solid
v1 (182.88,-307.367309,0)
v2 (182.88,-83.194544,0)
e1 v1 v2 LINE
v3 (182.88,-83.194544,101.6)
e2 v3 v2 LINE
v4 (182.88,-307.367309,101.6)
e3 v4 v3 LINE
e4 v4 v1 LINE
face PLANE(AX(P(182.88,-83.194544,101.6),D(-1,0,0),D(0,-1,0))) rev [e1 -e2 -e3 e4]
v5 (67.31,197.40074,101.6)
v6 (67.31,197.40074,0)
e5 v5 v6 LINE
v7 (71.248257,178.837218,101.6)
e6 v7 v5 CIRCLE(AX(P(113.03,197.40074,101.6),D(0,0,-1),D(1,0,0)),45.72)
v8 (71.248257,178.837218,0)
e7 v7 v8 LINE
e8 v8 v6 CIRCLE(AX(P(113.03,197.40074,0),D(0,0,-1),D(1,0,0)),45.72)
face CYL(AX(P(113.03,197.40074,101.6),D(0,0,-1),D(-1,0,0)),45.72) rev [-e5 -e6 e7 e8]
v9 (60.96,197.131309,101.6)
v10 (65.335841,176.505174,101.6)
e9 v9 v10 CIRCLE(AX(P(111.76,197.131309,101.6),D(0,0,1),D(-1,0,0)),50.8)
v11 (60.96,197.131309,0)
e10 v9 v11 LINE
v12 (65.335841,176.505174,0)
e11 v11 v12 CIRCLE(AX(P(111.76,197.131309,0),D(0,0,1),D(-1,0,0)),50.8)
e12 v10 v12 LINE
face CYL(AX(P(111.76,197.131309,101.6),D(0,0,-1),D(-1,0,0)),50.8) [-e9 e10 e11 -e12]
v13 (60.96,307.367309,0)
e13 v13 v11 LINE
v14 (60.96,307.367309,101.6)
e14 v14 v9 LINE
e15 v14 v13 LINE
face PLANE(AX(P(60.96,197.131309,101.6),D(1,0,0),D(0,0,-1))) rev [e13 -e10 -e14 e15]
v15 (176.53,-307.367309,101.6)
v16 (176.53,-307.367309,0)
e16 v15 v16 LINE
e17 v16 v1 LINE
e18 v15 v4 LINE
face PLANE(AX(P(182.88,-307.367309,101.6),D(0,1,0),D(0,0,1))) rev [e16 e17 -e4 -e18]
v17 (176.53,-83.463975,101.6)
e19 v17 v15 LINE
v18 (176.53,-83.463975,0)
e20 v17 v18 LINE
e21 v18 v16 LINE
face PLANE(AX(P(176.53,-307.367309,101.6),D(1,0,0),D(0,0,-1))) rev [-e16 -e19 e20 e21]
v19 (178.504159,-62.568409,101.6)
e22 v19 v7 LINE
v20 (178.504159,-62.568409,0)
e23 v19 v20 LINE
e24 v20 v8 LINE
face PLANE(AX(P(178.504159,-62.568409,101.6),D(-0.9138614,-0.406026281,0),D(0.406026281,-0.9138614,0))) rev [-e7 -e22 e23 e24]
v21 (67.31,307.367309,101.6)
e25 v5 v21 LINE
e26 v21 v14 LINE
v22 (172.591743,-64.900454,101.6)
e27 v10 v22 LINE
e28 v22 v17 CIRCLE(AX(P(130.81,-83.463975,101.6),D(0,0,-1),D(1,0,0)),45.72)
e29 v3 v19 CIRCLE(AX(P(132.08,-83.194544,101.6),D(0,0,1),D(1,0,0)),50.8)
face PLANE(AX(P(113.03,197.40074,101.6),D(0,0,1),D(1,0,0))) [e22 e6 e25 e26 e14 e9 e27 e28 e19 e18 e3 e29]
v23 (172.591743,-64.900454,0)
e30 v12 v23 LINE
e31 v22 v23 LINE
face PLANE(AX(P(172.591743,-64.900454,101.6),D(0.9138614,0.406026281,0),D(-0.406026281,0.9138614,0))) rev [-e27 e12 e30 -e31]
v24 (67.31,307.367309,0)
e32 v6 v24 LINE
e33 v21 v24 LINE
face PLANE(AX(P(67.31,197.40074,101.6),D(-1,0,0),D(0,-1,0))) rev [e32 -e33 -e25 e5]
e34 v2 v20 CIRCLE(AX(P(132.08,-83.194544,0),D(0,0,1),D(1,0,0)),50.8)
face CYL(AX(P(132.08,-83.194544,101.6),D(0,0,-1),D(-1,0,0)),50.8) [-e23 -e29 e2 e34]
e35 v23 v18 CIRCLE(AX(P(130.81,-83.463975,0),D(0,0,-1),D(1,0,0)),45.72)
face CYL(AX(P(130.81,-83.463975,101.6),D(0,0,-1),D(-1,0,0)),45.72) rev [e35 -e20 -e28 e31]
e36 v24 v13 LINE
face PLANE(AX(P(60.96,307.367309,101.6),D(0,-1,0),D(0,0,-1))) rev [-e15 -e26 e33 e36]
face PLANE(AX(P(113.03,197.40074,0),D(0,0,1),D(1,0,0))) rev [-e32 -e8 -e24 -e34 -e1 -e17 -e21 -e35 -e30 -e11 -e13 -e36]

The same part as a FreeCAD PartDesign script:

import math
import FreeCAD as App
import Part
import Sketcher
Q = App.Units.Quantity

doc = App.newDocument("Part")
body = doc.addObject("PartDesign::Body", "Body")

# Sketch on XY plane
sketch1 = body.newObject("Sketcher::SketchObject", "Sketch")
sketch1.AttachmentSupport = (doc.getObject("XY_Plane"), [""])
sketch1.MapMode = "FlatFace"
sketch1.addGeometry([
    Part.LineSegment(App.Vector(60.96, 307.367309, 0), App.Vector(60.96, 197.131309, 0)),  # 0
    Part.ArcOfCircle(Part.Circle(App.Vector(111.76, 197.131309, 0), App.Vector(0, 0, 1), 50.8), math.radians(-180), math.radians(-156.044545)),  # 1
    Part.LineSegment(App.Vector(65.335841, 176.505174, 0), App.Vector(172.591743, -64.900454, 0)),  # 2
    Part.ArcOfCircle(Part.Circle(App.Vector(130.81, -83.463975, 0), App.Vector(0, 0, 1), 45.72), math.radians(0), math.radians(23.955455)),  # 3
    Part.LineSegment(App.Vector(176.53, -83.463975, 0), App.Vector(176.53, -307.367309, 0)),  # 4
    Part.LineSegment(App.Vector(176.53, -307.367309, 0), App.Vector(182.88, -307.367309, 0)),  # 5
    Part.LineSegment(App.Vector(182.88, -307.367309, 0), App.Vector(182.88, -83.194544, 0)),  # 6
    Part.ArcOfCircle(Part.Circle(App.Vector(132.08, -83.194544, 0), App.Vector(0, 0, 1), 50.8), math.radians(0), math.radians(23.955455)),  # 7
    Part.LineSegment(App.Vector(178.504159, -62.568409, 0), App.Vector(71.248257, 178.837218, 0)),  # 8
    Part.ArcOfCircle(Part.Circle(App.Vector(113.03, 197.40074, 0), App.Vector(0, 0, 1), 45.72), math.radians(-180), math.radians(-156.044545)),  # 9
    Part.LineSegment(App.Vector(67.31, 197.40074, 0), App.Vector(67.31, 307.367309, 0)),  # 10
    Part.LineSegment(App.Vector(67.31, 307.367309, 0), App.Vector(60.96, 307.367309, 0)),  # 11
], False)
sketch1.addConstraint([
    Sketcher.Constraint("Tangent", 0, 2, 1, 1),
    Sketcher.Constraint("Tangent", 1, 2, 2, 1),
    Sketcher.Constraint("Tangent", 2, 2, 3, 2),
    Sketcher.Constraint("Tangent", 3, 1, 4, 1),
    Sketcher.Constraint("Coincident", 4, 2, 5, 1),
    Sketcher.Constraint("Coincident", 5, 2, 6, 1),
    Sketcher.Constraint("Tangent", 6, 2, 7, 1),
    Sketcher.Constraint("Tangent", 7, 2, 8, 1),
    Sketcher.Constraint("Tangent", 8, 2, 9, 2),
    Sketcher.Constraint("Tangent", 9, 1, 10, 1),
    Sketcher.Constraint("Coincident", 10, 2, 11, 1),
    Sketcher.Constraint("Coincident", 11, 2, 0, 1),
    Sketcher.Constraint("Vertical", 0),
    Sketcher.Constraint("Vertical", 4),
    Sketcher.Constraint("Horizontal", 5),
    Sketcher.Constraint("Vertical", 6),
    Sketcher.Constraint("Vertical", 10),
    Sketcher.Constraint("Horizontal", 11),
    Sketcher.Constraint("Equal", 1, 7),
    Sketcher.Constraint("Equal", 3, 9),
    Sketcher.Constraint("Parallel", 2, 8),
    Sketcher.Constraint("Equal", 5, 11),
    Sketcher.Constraint("Radius", 1, Q("2 in")),
    Sketcher.Constraint("Radius", 3, Q("1.8 in")),
    Sketcher.Constraint("Distance", 2, Q("10.4 in")),
    Sketcher.Constraint("DistanceX", 5, 1, 5, 2, Q("0.25 in")),
    Sketcher.Constraint("DistanceY", 0, 2, 0, 1, Q("4.34 in")),
    Sketcher.Constraint("DistanceX", -1, 1, 1, 3, Q("4.4 in")),
    Sketcher.Constraint("DistanceX", -1, 1, 7, 3, Q("5.2 in")),
    Sketcher.Constraint("DistanceY", 10, 1, 10, 2, Q("109.966569 mm")),
    Sketcher.Constraint("DistanceY", 4, 2, 4, 1, Q("223.903334 mm")),
    Sketcher.Constraint("DistanceY", -1, 1, 1, 3, Q("197.131309 mm")),
])
pad1 = body.newObject("PartDesign::Pad", "Pad")
pad1.Profile = sketch1
pad1.Length = Q("4 in")

doc.recompute()
